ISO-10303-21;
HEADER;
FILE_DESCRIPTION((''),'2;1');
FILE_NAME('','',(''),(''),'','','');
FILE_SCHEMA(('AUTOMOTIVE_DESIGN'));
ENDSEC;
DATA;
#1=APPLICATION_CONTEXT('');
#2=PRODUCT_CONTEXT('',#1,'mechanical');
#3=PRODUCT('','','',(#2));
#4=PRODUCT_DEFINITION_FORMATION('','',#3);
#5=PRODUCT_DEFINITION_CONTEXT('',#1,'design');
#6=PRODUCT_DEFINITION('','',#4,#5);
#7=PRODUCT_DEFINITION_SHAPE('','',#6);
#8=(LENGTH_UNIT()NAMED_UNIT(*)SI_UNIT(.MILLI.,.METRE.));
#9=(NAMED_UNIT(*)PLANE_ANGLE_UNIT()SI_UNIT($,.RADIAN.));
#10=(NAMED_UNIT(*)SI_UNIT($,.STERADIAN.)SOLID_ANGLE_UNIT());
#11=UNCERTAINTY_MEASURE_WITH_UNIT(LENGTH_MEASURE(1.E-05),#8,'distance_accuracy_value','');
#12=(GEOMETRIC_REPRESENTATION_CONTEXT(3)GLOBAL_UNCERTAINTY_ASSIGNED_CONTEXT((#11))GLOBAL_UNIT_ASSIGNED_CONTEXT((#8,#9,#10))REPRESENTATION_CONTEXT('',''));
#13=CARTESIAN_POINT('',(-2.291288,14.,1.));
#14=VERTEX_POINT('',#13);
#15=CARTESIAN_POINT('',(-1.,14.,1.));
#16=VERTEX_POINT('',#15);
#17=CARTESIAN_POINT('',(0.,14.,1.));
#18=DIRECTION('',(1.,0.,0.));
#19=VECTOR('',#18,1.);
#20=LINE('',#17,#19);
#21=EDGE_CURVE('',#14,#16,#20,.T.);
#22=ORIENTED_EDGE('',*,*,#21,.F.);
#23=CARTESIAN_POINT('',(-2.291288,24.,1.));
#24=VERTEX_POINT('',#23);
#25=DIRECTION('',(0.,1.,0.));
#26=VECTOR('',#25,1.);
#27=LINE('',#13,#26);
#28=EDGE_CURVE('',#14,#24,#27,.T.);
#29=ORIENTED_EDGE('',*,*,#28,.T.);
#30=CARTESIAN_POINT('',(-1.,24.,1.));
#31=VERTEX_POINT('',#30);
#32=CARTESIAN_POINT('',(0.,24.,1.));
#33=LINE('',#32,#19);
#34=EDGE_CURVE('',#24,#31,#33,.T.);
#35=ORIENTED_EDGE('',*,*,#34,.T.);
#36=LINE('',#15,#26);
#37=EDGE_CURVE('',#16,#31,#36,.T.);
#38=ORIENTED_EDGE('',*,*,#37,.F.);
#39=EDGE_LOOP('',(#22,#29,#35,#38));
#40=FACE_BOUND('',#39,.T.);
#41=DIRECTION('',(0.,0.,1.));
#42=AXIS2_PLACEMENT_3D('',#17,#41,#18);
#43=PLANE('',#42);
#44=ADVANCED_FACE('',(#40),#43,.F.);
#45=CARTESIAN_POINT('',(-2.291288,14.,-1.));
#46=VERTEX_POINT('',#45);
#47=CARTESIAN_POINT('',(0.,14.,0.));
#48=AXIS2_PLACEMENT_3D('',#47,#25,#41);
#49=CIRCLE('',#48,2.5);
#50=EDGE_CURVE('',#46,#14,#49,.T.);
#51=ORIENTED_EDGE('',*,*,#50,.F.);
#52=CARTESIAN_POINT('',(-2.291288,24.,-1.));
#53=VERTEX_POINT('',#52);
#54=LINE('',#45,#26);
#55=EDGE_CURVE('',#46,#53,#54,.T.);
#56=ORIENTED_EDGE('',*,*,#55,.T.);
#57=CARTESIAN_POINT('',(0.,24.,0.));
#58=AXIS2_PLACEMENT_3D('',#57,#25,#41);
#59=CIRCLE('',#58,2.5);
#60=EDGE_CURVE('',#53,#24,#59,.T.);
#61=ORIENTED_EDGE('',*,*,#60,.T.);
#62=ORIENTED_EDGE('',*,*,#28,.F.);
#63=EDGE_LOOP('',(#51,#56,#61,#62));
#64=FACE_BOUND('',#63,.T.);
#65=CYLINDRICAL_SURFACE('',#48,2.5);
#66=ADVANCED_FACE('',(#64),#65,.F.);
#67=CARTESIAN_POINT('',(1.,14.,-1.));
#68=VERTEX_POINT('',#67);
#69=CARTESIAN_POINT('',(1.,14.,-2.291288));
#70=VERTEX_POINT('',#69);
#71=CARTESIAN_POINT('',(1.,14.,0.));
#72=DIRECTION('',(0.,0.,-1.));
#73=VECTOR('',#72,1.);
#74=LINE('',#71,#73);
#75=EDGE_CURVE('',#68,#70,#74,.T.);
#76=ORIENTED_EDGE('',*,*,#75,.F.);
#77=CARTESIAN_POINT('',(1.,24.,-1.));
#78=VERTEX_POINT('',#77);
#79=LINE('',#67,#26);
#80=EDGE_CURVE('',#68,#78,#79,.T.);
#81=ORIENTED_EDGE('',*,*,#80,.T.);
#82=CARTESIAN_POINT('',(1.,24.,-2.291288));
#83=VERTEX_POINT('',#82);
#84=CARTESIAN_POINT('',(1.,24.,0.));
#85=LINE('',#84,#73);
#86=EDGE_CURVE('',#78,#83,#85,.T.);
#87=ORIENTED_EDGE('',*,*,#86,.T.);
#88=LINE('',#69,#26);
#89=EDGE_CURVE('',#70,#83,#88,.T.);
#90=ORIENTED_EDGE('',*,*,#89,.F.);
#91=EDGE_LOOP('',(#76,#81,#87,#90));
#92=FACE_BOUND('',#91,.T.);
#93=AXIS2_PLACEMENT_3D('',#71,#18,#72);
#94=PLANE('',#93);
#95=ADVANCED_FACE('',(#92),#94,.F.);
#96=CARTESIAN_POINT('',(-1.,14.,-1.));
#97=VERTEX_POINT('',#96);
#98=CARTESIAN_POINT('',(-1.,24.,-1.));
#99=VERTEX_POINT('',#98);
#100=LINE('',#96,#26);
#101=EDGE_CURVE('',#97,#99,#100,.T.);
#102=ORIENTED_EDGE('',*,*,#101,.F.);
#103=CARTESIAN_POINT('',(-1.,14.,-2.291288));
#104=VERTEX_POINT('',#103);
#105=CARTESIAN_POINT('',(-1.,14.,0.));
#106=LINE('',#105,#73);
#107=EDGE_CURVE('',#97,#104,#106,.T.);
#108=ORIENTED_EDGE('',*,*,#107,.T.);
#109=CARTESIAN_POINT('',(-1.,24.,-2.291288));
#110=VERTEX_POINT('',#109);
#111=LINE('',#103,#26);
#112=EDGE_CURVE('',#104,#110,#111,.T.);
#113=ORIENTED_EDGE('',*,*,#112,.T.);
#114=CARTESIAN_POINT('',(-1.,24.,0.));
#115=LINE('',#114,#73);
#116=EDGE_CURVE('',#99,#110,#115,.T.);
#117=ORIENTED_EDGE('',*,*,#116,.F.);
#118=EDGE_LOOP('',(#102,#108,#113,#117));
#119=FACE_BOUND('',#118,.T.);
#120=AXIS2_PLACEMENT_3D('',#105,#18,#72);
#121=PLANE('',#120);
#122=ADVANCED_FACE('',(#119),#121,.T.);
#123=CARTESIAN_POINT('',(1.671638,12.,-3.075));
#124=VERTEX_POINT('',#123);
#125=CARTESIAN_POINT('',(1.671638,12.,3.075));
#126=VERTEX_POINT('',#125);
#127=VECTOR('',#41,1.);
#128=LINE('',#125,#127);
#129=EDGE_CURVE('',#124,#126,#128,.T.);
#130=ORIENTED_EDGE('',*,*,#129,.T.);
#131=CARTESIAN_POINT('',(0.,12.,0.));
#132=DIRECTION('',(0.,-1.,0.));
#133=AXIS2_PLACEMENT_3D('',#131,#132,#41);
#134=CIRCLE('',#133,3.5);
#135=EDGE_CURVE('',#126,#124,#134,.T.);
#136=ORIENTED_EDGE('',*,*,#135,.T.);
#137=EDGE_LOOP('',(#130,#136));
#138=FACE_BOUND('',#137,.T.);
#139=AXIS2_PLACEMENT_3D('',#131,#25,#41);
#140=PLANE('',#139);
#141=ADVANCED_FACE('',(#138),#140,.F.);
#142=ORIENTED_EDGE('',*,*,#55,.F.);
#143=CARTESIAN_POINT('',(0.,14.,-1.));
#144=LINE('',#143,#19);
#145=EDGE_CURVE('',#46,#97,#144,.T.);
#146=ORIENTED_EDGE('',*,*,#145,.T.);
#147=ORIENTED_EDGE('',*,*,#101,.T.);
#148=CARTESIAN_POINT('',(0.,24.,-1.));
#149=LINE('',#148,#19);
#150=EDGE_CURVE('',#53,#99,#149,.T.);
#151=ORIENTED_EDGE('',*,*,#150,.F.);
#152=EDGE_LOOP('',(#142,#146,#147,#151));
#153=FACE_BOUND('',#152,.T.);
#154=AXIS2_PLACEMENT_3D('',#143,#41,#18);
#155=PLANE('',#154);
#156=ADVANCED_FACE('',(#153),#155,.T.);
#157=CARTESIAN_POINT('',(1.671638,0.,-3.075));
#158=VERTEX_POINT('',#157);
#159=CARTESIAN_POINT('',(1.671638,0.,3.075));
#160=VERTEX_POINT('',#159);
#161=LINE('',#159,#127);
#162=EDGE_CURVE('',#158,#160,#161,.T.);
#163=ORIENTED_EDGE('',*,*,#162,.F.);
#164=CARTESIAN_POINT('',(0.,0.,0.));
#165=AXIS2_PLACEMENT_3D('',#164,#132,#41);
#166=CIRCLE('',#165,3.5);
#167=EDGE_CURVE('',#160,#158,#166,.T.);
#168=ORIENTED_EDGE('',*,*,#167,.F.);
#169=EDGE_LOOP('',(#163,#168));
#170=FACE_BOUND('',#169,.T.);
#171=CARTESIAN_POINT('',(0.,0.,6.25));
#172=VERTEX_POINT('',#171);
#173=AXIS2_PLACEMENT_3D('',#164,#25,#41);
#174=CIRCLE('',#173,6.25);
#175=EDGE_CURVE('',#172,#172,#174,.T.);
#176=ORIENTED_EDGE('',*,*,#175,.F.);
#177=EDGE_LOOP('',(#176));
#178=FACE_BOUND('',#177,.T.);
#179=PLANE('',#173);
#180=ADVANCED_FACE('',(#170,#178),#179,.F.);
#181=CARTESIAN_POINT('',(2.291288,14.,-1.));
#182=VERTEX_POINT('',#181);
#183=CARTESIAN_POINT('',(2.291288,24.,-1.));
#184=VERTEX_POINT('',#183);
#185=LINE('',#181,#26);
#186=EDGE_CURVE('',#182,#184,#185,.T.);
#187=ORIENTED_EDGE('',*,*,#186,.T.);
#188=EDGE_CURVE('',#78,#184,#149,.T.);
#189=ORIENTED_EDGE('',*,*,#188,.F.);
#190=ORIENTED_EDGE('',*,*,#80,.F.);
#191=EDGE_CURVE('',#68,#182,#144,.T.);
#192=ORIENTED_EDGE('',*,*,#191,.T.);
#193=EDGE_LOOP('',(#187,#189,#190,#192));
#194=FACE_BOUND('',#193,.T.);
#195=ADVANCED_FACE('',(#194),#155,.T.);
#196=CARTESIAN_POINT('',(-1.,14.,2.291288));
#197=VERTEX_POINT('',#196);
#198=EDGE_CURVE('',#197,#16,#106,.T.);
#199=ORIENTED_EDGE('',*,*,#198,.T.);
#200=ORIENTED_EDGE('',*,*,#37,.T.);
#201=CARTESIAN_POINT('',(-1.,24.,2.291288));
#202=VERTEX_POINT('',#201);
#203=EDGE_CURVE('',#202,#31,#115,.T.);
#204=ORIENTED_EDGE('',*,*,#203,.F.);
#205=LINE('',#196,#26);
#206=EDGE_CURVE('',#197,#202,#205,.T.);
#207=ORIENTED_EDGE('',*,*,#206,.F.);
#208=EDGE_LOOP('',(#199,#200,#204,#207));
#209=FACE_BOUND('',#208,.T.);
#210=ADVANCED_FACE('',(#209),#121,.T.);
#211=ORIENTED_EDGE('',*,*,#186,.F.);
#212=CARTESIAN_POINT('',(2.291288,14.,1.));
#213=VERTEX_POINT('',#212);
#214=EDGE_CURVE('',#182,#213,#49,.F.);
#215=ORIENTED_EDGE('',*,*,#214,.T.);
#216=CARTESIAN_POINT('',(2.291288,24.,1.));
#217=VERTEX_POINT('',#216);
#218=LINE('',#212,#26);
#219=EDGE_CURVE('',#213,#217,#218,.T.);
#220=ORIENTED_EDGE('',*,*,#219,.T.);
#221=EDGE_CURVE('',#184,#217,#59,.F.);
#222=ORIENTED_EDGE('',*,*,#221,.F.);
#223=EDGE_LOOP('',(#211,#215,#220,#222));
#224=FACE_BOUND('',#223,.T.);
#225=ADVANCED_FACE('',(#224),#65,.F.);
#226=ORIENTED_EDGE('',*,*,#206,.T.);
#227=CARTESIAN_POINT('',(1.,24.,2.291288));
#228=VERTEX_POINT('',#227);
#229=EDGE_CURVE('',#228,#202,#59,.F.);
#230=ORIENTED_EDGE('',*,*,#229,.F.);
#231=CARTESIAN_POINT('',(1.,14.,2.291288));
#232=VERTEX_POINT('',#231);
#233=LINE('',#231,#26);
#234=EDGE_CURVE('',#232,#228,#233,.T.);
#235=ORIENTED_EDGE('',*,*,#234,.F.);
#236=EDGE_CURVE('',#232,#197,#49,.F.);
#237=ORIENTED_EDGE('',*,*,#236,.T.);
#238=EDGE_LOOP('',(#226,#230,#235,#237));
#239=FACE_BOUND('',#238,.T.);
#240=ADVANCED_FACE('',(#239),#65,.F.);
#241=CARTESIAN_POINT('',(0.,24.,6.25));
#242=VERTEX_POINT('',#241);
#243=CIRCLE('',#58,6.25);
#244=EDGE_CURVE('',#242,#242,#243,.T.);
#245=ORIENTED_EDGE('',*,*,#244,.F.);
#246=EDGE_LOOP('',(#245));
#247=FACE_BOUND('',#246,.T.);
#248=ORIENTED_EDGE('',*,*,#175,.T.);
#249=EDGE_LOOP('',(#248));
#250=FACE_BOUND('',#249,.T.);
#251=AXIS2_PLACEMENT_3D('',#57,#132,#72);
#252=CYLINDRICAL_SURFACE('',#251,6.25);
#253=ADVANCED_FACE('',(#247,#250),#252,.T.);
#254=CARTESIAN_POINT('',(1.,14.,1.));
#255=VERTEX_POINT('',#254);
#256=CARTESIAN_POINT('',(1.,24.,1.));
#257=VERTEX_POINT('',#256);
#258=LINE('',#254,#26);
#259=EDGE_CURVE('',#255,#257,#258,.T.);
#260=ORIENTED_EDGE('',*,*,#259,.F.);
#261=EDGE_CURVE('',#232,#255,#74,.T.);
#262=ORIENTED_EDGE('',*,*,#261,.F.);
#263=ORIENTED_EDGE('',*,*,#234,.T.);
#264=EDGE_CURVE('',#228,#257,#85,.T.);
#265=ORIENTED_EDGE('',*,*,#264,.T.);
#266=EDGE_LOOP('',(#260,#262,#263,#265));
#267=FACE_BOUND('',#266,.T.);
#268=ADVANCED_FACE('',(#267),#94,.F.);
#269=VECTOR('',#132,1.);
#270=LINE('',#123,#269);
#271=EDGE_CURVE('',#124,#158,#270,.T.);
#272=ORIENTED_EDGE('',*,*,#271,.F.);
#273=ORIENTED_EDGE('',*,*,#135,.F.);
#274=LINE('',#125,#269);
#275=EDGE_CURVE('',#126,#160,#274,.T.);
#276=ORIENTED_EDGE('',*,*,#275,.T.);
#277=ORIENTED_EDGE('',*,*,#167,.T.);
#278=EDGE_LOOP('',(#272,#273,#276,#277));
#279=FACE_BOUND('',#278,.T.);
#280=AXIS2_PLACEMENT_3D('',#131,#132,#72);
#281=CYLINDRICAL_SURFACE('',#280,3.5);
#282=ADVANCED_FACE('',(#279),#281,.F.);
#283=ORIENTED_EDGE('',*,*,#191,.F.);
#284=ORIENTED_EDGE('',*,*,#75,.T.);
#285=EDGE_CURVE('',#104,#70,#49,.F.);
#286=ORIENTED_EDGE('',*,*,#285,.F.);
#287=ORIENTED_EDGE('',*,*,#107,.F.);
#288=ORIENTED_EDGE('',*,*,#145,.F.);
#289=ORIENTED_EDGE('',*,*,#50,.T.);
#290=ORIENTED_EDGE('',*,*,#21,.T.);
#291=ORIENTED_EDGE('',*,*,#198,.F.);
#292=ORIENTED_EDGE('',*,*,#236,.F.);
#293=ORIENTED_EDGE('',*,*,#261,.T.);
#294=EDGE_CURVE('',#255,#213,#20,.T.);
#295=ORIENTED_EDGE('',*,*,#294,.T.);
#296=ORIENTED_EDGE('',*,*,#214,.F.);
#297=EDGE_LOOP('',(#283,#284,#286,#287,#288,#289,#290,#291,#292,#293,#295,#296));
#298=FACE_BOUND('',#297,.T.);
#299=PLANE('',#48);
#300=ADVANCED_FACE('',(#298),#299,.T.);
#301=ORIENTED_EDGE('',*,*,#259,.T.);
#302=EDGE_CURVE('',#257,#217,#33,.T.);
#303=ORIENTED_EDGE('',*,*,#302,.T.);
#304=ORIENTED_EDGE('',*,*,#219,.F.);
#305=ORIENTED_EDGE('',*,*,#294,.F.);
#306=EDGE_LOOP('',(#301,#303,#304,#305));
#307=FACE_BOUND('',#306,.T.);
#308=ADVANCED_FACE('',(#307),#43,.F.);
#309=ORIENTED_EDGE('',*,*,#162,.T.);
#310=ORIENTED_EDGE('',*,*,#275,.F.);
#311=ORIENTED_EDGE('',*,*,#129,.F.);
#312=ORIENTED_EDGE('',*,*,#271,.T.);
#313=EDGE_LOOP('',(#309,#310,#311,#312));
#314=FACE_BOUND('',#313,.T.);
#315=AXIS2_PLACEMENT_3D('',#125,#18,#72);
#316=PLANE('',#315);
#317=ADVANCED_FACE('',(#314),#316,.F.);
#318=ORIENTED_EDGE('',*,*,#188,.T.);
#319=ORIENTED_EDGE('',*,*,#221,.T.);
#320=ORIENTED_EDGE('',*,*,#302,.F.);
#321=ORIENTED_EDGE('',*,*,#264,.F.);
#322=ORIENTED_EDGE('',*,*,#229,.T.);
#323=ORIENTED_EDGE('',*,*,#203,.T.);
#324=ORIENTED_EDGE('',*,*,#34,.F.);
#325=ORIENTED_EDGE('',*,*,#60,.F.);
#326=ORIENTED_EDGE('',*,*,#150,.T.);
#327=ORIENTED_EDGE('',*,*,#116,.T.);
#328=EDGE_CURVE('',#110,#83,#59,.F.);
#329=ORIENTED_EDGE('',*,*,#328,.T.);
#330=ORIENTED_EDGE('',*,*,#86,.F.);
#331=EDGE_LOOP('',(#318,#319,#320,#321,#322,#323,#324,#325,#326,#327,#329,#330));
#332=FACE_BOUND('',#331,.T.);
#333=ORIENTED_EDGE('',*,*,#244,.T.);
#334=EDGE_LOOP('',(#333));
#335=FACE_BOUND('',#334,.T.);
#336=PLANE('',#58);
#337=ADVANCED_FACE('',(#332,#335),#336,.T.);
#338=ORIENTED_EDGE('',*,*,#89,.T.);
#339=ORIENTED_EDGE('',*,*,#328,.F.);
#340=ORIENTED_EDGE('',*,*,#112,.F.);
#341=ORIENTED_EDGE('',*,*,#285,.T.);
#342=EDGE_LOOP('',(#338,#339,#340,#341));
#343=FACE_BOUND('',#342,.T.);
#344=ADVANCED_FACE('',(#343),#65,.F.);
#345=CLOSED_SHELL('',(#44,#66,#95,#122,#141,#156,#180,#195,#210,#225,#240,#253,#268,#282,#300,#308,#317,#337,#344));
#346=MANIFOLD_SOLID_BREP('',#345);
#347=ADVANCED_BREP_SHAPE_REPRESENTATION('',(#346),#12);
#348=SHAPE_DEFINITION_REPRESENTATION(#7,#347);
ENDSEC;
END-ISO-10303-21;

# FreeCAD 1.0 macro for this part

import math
import FreeCAD as App
import Part
import Sketcher
from FreeCAD import Vector
Q = App.Units.Quantity

doc = App.newDocument("Part")
body = doc.addObject("PartDesign::Body", "Body")

# Sketch on XZ plane
sketch1 = body.newObject("Sketcher::SketchObject", "Sketch")
sketch1.AttachmentSupport = (doc.getObject("XZ_Plane"), [""])
sketch1.MapMode = "FlatFace"
sketch1.addGeometry(Part.Circle(Vector(0, 0, 0), Vector(0, 0, 1), 6), False)
sketch1.addConstraint([
    Sketcher.Constraint("Coincident", 0, 3, -1, 1),
    Sketcher.Constraint("Diameter", 0, Q("12.5 mm")),
])
pad1 = body.newObject("PartDesign::Pad", "Pad")
pad1.Profile = sketch1
pad1.Length = 24
pad1.Reversed = True

# Sketch on XZ plane
sketch2 = body.newObject("Sketcher::SketchObject", "Sketch001")
sketch2.AttachmentSupport = (doc.getObject("XZ_Plane"), [""])
sketch2.MapMode = "FlatFace"
sketch2.addGeometry([
    Part.LineSegment(Vector(1.7, -3.1, 0), Vector(1.7, 3.1, 0)),
    Part.ArcOfCircle(Part.Circle(Vector(0, 0, 0), Vector(0, 0, 1), 3.5), math.radians(61), math.radians(299)),
], False)
sketch2.addConstraint([
    Sketcher.Constraint("Coincident", 0, 1, 1, 2),
    Sketcher.Constraint("Coincident", 1, 1, 0, 2),
    Sketcher.Constraint("Vertical", 0),
    Sketcher.Constraint("Coincident", 1, 3, -1, 1),
    Sketcher.Constraint("Radius", 1, Q("3.5 mm")),
    Sketcher.Constraint("DistanceY", 0, 1, 0, 2, Q("6.15 mm")),
])
pocket1 = body.newObject("PartDesign::Pocket", "Pocket")
pocket1.Profile = sketch2
pocket1.Length = 12

# Sketch on XZ plane
sketch3 = body.newObject("Sketcher::SketchObject", "Sketch002")
sketch3.AttachmentSupport = (doc.getObject("XZ_Plane"), [""])
sketch3.MapMode = "FlatFace"
sketch3.AttachmentOffset = App.Placement(Vector(0, 0, -24), App.Rotation())
sketch3.addGeometry([
    Part.LineSegment(Vector(1, -1, 0), Vector(1, -2.3, 0)),  # 0
    Part.ArcOfCircle(Part.Circle(Vector(0, 0, 0), Vector(0, 0, 1), 2.5), math.radians(-114), math.radians(-66)),  # 1
    Part.LineSegment(Vector(-1, -2.3, 0), Vector(-1, -1, 0)),  # 2
    Part.LineSegment(Vector(-1, -1, 0), Vector(-2.3, -1, 0)),  # 3
    Part.ArcOfCircle(Part.Circle(Vector(0, 0, 0), Vector(0, 0, 1), 2.5), math.radians(156), math.radians(204)),  # 4
    Part.LineSegment(Vector(-2.3, 1, 0), Vector(-1, 1, 0)),  # 5
    Part.LineSegment(Vector(-1, 1, 0), Vector(-1, 2.3, 0)),  # 6
    Part.ArcOfCircle(Part.Circle(Vector(0, 0, 0), Vector(0, 0, 1), 2.5), math.radians(66), math.radians(114)),  # 7
    Part.LineSegment(Vector(1, 2.3, 0), Vector(1, 1, 0)),  # 8
    Part.LineSegment(Vector(1, 1, 0), Vector(2.3, 1, 0)),  # 9
    Part.ArcOfCircle(Part.Circle(Vector(0, 0, 0), Vector(0, 0, 1), 2.5), math.radians(-24), math.radians(24)),  # 10
    Part.LineSegment(Vector(2.3, -1, 0), Vector(1, -1, 0)),  # 11
], False)
sketch3.addConstraint([
    Sketcher.Constraint("Coincident", 0, 2, 1, 2),
    Sketcher.Constraint("Coincident", 1, 1, 2, 1),
    Sketcher.Constraint("Coincident", 2, 2, 3, 1),
    Sketcher.Constraint("Coincident", 3, 2, 4, 2),
    Sketcher.Constraint("Coincident", 4, 1, 5, 1),
    Sketcher.Constraint("Coincident", 5, 2, 6, 1),
    Sketcher.Constraint("Coincident", 6, 2, 7, 2),
    Sketcher.Constraint("Coincident", 7, 1, 8, 1),
    Sketcher.Constraint("Coincident", 8, 2, 9, 1),
    Sketcher.Constraint("Coincident", 9, 2, 10, 2),
    Sketcher.Constraint("Coincident", 10, 1, 11, 1),
    Sketcher.Constraint("Coincident", 11, 2, 0, 1),
    Sketcher.Constraint("Vertical", 0),
    Sketcher.Constraint("Vertical", 2),
    Sketcher.Constraint("Horizontal", 3),
    Sketcher.Constraint("Horizontal", 5),
    Sketcher.Constraint("Vertical", 6),
    Sketcher.Constraint("Vertical", 8),
    Sketcher.Constraint("Horizontal", 9),
    Sketcher.Constraint("Horizontal", 11),
    Sketcher.Constraint("Coincident", 1, 3, -1, 1),
    Sketcher.Constraint("Coincident", 4, 3, -1, 1),
    Sketcher.Constraint("Coincident", 7, 3, -1, 1),
    Sketcher.Constraint("Coincident", 10, 3, -1, 1),
    Sketcher.Constraint("Equal", 1, 4),
    Sketcher.Constraint("Equal", 4, 7),
    Sketcher.Constraint("Equal", 7, 10),
    Sketcher.Constraint("Symmetric", 2, 2, 8, 2, -1, 1),
    Sketcher.Constraint("Symmetric", 5, 2, 11, 2, -1, 1),
    Sketcher.Constraint("Symmetric", 5, 2, 8, 2, -2),
    Sketcher.Constraint("Equal", 11, 0),
    Sketcher.Constraint("Radius", 1, Q("2.5 mm")),
    Sketcher.Constraint("DistanceX", -1, 1, 0, 2, Q("1 mm")),
])
pocket2 = body.newObject("PartDesign::Pocket", "Pocket001")
pocket2.Profile = sketch3
pocket2.Length = 10
pocket2.Reversed = True

doc.recompute()
